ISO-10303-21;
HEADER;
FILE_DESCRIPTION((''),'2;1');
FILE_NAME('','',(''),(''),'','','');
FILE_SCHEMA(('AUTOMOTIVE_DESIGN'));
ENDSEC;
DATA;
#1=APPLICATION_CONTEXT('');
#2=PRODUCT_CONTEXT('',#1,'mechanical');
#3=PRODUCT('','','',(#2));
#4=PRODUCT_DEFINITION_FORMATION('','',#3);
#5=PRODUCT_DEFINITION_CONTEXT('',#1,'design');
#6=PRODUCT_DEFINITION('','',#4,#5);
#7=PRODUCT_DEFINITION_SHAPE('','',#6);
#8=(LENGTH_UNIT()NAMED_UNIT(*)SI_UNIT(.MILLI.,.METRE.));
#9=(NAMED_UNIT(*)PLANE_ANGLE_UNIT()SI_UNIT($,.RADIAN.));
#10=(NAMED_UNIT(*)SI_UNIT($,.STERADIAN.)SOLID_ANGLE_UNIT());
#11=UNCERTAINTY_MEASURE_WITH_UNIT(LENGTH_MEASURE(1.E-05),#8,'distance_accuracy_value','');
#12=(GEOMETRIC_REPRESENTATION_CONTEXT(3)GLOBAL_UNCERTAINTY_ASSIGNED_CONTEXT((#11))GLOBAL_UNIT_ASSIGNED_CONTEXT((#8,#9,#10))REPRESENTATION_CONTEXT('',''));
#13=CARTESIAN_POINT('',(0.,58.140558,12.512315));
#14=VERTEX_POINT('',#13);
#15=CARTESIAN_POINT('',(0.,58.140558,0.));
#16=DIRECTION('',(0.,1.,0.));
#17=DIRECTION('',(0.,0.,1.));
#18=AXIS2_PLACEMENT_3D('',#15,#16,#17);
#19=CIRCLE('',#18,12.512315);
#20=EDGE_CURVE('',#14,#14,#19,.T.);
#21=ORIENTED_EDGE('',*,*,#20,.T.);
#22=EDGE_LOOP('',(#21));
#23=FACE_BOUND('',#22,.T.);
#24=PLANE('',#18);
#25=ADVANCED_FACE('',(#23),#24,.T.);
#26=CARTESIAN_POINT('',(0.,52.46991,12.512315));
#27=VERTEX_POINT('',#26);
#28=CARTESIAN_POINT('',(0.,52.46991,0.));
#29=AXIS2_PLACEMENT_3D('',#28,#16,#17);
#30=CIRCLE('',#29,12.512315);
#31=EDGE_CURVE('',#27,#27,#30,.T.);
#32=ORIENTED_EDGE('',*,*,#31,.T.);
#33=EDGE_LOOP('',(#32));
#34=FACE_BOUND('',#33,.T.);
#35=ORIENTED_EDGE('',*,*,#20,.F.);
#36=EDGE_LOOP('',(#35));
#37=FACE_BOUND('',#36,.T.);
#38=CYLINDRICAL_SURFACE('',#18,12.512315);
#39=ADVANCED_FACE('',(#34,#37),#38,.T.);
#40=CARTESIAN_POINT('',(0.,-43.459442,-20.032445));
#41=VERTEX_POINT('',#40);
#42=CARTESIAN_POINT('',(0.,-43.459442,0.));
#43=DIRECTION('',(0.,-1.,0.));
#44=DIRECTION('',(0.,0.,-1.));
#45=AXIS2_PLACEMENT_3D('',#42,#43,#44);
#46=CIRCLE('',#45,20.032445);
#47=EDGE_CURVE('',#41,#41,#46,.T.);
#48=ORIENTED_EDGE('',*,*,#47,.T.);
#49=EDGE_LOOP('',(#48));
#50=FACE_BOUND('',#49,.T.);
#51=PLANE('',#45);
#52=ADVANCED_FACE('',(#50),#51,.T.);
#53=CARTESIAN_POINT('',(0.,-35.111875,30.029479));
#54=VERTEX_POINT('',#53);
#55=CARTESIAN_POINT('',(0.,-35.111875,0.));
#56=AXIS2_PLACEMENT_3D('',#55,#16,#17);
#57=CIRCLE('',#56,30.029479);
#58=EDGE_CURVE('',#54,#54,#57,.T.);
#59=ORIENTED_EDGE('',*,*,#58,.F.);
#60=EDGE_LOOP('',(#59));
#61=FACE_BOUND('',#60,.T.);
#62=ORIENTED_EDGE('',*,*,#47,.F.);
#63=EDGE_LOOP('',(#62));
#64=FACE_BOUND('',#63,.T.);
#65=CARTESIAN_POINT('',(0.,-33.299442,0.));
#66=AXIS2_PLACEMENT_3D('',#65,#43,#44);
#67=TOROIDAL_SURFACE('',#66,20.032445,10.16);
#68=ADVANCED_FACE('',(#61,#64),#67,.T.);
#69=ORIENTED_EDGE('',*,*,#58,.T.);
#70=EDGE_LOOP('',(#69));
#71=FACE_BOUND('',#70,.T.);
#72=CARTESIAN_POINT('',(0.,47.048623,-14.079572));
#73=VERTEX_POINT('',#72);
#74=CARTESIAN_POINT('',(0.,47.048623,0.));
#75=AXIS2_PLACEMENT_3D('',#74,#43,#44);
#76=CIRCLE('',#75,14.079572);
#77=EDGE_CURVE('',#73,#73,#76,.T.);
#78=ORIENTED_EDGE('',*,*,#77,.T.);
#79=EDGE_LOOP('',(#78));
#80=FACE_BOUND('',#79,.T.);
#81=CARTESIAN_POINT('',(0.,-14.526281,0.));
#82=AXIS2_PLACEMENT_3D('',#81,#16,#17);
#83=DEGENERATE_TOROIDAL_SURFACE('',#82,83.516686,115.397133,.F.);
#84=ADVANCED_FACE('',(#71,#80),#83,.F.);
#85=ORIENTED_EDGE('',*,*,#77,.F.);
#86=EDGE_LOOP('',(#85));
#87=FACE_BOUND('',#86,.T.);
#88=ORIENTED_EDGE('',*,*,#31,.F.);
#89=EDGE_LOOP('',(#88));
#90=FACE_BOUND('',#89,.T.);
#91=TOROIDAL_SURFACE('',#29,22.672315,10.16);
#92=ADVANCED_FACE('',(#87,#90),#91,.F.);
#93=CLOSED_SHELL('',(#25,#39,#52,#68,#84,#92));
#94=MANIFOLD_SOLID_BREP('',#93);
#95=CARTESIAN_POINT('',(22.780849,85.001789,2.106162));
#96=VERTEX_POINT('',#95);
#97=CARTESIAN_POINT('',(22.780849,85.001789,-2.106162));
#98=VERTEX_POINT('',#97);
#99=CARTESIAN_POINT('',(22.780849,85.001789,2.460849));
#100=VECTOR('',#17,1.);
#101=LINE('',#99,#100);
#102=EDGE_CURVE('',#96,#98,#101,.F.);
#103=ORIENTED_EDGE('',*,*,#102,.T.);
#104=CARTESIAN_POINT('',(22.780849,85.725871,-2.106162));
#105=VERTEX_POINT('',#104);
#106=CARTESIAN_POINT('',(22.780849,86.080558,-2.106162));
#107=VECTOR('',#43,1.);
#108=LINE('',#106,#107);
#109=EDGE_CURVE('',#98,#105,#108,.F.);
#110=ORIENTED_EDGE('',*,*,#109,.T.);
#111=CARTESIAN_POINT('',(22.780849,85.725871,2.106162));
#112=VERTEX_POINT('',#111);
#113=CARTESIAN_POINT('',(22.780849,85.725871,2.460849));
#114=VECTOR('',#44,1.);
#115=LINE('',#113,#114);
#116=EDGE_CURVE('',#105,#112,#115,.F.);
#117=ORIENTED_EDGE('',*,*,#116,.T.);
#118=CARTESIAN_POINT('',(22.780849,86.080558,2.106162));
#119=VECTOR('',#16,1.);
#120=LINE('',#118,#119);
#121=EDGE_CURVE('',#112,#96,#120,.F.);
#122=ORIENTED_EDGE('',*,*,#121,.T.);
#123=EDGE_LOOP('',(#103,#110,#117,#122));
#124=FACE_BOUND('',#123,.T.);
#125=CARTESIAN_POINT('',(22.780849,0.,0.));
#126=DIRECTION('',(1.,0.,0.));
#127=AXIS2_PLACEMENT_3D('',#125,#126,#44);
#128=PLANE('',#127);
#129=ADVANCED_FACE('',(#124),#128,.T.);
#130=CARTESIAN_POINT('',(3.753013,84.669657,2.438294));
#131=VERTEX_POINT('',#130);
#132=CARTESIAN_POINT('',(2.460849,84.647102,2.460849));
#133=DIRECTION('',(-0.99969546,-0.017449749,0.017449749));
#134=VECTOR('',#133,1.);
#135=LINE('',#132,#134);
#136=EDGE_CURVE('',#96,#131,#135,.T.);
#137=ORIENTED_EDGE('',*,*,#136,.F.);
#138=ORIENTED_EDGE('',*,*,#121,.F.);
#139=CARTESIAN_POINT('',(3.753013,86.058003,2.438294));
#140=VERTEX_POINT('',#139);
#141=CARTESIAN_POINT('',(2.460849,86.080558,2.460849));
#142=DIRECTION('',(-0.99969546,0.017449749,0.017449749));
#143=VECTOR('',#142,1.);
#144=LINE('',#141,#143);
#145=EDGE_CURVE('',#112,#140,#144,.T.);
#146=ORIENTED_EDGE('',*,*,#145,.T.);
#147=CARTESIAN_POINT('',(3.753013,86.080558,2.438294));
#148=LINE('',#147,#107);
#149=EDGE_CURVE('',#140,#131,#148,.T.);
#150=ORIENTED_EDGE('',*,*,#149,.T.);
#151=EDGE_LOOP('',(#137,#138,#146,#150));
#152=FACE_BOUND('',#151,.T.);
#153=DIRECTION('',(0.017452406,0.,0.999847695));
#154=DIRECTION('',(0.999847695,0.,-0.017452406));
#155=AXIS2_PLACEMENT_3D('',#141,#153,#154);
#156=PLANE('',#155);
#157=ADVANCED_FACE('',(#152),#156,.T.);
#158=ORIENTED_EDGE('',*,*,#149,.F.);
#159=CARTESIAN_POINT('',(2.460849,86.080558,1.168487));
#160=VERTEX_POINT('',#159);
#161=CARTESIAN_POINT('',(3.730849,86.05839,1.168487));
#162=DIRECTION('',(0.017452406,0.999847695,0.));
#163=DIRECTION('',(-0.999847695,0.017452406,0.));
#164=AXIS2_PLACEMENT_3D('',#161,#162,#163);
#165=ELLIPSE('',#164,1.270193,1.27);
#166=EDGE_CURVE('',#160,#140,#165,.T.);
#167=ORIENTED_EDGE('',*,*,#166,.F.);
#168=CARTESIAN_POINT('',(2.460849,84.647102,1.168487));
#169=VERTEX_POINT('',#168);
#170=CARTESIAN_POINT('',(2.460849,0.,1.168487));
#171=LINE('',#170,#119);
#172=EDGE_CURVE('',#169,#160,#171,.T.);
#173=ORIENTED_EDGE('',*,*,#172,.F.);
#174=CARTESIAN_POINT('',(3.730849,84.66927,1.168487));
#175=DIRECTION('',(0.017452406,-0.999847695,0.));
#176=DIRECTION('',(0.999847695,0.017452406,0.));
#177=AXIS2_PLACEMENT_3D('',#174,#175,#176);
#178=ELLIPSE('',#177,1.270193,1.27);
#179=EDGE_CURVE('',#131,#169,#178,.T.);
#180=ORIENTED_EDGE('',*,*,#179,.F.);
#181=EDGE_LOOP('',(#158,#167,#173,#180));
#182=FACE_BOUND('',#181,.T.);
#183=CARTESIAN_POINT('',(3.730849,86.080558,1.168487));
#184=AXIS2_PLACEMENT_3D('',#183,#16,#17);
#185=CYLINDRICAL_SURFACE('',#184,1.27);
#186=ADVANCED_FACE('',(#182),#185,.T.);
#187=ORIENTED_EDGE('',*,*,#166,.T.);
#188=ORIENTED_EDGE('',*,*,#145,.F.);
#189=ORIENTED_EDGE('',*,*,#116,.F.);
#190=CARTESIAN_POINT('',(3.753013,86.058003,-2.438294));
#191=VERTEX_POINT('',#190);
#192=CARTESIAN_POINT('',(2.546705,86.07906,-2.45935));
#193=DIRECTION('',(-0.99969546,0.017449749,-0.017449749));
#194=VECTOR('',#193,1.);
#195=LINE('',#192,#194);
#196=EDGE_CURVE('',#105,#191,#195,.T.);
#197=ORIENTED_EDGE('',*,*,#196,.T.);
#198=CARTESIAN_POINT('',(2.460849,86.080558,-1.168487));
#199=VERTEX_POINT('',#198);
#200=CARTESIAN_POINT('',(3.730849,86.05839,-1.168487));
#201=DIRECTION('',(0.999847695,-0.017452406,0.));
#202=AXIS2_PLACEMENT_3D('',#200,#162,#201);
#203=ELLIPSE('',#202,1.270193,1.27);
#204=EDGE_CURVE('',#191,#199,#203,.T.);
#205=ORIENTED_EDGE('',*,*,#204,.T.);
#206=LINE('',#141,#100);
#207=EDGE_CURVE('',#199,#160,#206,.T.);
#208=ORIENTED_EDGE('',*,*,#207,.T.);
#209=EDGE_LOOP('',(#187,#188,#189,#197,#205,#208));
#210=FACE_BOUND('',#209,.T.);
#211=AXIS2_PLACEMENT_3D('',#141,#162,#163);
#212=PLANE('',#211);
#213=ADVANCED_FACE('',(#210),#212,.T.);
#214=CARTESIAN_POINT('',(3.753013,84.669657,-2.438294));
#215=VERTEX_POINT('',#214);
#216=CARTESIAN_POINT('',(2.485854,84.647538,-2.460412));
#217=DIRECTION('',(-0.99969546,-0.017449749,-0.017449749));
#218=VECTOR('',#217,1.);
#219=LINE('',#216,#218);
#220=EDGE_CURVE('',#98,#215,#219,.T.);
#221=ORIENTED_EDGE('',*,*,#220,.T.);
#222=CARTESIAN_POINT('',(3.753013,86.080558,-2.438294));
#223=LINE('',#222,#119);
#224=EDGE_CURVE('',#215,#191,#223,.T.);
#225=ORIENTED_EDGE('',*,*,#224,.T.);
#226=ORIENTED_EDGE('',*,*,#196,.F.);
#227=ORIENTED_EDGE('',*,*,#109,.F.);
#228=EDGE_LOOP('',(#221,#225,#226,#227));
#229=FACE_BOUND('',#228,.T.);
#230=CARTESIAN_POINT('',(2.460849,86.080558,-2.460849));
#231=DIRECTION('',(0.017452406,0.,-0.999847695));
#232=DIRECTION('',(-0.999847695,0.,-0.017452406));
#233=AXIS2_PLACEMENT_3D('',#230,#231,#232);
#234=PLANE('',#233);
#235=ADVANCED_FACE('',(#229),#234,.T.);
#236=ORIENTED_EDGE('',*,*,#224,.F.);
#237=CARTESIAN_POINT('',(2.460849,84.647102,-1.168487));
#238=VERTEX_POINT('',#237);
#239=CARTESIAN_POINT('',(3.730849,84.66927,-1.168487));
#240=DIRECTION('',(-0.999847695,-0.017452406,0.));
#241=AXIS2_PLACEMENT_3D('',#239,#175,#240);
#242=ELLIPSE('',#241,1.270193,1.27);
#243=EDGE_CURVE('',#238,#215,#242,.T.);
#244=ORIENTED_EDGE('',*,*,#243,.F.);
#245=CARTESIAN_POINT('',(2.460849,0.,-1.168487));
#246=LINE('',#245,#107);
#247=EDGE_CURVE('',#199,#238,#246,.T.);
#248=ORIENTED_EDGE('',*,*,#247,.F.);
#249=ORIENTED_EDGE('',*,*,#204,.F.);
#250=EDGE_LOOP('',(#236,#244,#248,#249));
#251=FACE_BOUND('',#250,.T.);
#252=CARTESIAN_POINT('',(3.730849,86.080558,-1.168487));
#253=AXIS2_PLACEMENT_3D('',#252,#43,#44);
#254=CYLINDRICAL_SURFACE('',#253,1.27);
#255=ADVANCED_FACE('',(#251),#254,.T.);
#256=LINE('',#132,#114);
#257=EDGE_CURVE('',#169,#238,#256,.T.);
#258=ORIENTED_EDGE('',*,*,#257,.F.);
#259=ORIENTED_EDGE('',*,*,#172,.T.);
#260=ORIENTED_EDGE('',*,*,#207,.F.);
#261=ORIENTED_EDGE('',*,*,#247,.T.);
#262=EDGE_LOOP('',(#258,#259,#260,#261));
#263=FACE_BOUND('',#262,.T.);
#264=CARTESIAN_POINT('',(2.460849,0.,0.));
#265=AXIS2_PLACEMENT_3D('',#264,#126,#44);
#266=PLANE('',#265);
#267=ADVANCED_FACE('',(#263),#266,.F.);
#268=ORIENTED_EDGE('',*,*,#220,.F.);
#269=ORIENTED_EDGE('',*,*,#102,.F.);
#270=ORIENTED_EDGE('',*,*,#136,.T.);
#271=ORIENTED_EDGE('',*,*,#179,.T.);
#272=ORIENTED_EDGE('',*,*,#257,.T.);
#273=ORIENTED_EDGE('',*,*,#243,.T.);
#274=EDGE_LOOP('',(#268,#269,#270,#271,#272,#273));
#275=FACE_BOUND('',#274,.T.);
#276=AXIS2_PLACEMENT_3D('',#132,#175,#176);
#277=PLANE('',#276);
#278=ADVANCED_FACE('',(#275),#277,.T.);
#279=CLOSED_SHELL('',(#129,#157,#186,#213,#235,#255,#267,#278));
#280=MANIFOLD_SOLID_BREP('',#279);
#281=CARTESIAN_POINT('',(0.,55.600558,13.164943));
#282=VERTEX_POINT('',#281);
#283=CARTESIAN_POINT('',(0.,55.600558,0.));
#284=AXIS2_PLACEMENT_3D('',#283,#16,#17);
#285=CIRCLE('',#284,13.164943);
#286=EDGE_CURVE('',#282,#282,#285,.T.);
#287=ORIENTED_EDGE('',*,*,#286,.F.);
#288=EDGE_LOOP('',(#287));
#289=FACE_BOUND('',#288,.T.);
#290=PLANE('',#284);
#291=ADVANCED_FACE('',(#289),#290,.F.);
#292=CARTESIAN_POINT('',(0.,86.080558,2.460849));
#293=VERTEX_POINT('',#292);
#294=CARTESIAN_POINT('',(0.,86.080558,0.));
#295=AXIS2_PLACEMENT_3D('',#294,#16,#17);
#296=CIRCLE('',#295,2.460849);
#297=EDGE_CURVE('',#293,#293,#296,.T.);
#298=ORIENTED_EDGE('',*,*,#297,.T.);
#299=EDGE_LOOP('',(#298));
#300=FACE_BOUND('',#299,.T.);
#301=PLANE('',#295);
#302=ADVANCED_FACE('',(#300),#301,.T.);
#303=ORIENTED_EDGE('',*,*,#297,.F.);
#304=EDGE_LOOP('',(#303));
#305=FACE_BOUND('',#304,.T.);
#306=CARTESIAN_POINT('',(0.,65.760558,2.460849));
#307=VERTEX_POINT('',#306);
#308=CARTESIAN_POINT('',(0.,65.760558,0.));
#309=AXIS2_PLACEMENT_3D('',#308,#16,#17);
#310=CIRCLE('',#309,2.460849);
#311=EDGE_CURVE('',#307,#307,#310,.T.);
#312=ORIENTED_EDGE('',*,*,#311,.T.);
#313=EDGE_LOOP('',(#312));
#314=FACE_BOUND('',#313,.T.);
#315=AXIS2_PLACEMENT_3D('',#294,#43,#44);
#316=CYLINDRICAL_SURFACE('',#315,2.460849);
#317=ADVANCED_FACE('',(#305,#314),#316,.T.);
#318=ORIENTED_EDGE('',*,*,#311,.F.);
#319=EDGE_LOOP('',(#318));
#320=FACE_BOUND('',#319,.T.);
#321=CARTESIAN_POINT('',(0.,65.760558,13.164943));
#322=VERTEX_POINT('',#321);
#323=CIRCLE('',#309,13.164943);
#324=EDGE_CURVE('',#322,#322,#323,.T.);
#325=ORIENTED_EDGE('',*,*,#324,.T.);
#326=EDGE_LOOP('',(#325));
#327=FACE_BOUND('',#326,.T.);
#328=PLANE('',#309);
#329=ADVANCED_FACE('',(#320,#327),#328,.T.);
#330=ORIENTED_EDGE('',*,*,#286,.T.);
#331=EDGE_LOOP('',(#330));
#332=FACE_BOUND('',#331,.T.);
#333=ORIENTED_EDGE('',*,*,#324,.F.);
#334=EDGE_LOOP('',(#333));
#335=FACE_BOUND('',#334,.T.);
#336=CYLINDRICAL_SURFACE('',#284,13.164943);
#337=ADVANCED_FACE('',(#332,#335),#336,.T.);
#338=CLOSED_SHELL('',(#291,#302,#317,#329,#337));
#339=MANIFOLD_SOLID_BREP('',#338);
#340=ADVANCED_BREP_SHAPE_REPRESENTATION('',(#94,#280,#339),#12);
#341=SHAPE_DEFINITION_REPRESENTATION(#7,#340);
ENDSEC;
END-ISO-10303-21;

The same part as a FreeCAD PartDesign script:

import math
import FreeCAD as App
import Part
import Sketcher
Q = App.Units.Quantity


def edges_at(feature, points):
    """Names of the edges that pass closest to the given points."""
    edges = feature.Shape.Edges
    near = lambda p: min(range(len(edges)), key=lambda i: edges[i].distToShape(Part.Vertex(*p))[0])
    return sorted({f"Edge{near(p) + 1}" for p in points})


def add_polygon(sketch, points):
    """Adds a closed chain of lines whose ends are joined by coincident constraints."""
    first, n = sketch.GeometryCount, len(points)
    for a, b in zip(points, points[1:] + points[:1]):
        sketch.addGeometry(Part.LineSegment(App.Vector(*a, 0), App.Vector(*b, 0)), False)
    for i in range(n):
        sketch.addConstraint(Sketcher.Constraint("Coincident", first + i, 2, first + (i + 1) % n, 1))

doc = App.newDocument("Part")
params = doc.addObject("Spreadsheet::Sheet", "Params")
for row, (alias, value) in enumerate([
    ("sketch1_height", "4 in"),
    ("revolution_angle", "360 deg"),
    ("fillet_radius", "0.4 in"),
    ("pad1_length", "0.3 in"),
    ("pad1_length2", "0.1 in"),
    ("pad2_length", "0.8 in"),
    ("pad3_length", "0.8 in"),
    ("pad3_taper", "-1 deg"),
    ("fillet2_radius", "0.05 in"),
], start=1):
    params.set(f"A{row}", alias)
    params.set(f"B{row}", "=" + value)
    params.setAlias(f"B{row}", alias)

body = doc.addObject("PartDesign::Body", "Body")

sketch1 = doc.addObject("Sketcher::SketchObject", "Sketch")
body.addObject(sketch1)
sketch1.AttachmentSupport = (doc.XY_Plane, [""])
sketch1.MapMode = "FlatFace"
sketch1.addGeometry(Part.LineSegment(App.Vector(-28.194417, -43.459442, 0), App.Vector(0, -43.459442, 0)), False)
sketch1.addGeometry(Part.LineSegment(App.Vector(0, -43.459442, 0), App.Vector(0, 58.140558, 0)), False)
sketch1.addGeometry(Part.LineSegment(App.Vector(0, 58.140558, 0), App.Vector(-12.512315, 58.140558, 0)), False)
sketch1.addGeometry(Part.LineSegment(App.Vector(-12.512315, 58.140558, 0), App.Vector(-12.512315, 49.465353, 0)), False)
sketch1.addGeometry(Part.ArcOfCircle(Part.Circle(App.Vector(83.516686, -14.526281, 0), App.Vector(0, 0, 1), 115.397133), math.radians(146.321376), math.radians(194.520528)), False)
sketch1.addConstraint(Sketcher.Constraint("Coincident", 0, 2, 1, 1))
sketch1.addConstraint(Sketcher.Constraint("Coincident", 1, 2, 2, 1))
sketch1.addConstraint(Sketcher.Constraint("Coincident", 2, 2, 3, 1))
sketch1.addConstraint(Sketcher.Constraint("Coincident", 3, 2, 4, 1))
sketch1.addConstraint(Sketcher.Constraint("Coincident", 4, 2, 0, 1))
sketch1.addConstraint(Sketcher.Constraint("Horizontal", 0))
sketch1.addConstraint(Sketcher.Constraint("Vertical", 1))
sketch1.addConstraint(Sketcher.Constraint("Horizontal", 2))
sketch1.addConstraint(Sketcher.Constraint("Vertical", 3))
sketch1.addConstraint(Sketcher.Constraint("PointOnObject", 0, 2, -2))
sketch1.addConstraint(Sketcher.Constraint("DistanceY", 1, 1, 1, 2, Q("4 in")))
sketch1.addConstraint(Sketcher.Constraint("Radius", 4, 115.397133))
sketch1.addConstraint(Sketcher.Constraint("DistanceX", 2, 2, 4, 3, 96.029001))
sketch1.addConstraint(Sketcher.Constraint("DistanceX", 4, 2, 3, 2, 15.682102))
sketch1.addConstraint(Sketcher.Constraint("DistanceX", 0, 1, 0, 2, 28.194417))
sketch1.addConstraint(Sketcher.Constraint("DistanceY", 4, 3, -1, 1, 14.526281))
sketch1.setExpression("Constraints[10]", "Params.sketch1_height")
revolution = doc.addObject("PartDesign::Revolution", "Revolution")
body.addObject(revolution)
revolution.Profile = sketch1
revolution.ReferenceAxis = (sketch1, ["V_Axis"])
revolution.setExpression("Angle", "Params.revolution_angle")
doc.recompute()

fillet = doc.addObject("PartDesign::Fillet", "Fillet")
body.addObject(fillet)
fillet.Base = (revolution, edges_at(revolution, [(0, -43.459, -28.194), (0, 49.465, -12.512)]))
fillet.setExpression("Radius", "Params.fillet_radius")
body2 = doc.addObject("PartDesign::Body", "Body001")

sketch2 = doc.addObject("Sketcher::SketchObject", "Sketch001")
body2.addObject(sketch2)
sketch2.AttachmentSupport = (doc.getObject("XZ_Plane001"), [""])
sketch2.MapMode = "FlatFace"
sketch2.AttachmentOffset = App.Placement(App.Vector(0, 0, -58.140558), App.Rotation())
sketch2.addGeometry(Part.Circle(App.Vector(0, 0, 0), App.Vector(0, 0, 1), 13.164943), False)
sketch2.addConstraint(Sketcher.Constraint("Coincident", 0, 3, -1, 1))
sketch2.addConstraint(Sketcher.Constraint("Diameter", 0, 26.329886))
pad1 = doc.addObject("PartDesign::Pad", "Pad")
body2.addObject(pad1)
pad1.Profile = sketch2
pad1.Type = "TwoLengths"
pad1.setExpression("Length", "Params.pad1_length")
pad1.setExpression("Length2", "Params.pad1_length2")
pad1.Reversed = True

sketch3 = doc.addObject("Sketcher::SketchObject", "Sketch002")
body2.addObject(sketch3)
sketch3.AttachmentSupport = (doc.getObject("XZ_Plane001"), [""])
sketch3.MapMode = "FlatFace"
sketch3.AttachmentOffset = App.Placement(App.Vector(0, 0, -65.760558), App.Rotation())
sketch3.addGeometry(Part.Circle(App.Vector(0, 0, 0), App.Vector(0, 0, 1), 2.460849), False)
sketch3.addConstraint(Sketcher.Constraint("Coincident", 0, 3, -1, 1))
sketch3.addConstraint(Sketcher.Constraint("Diameter", 0, 4.921697))
pad2 = doc.addObject("PartDesign::Pad", "Pad001")
body2.addObject(pad2)
pad2.Profile = sketch3
pad2.setExpression("Length", "Params.pad2_length")
pad2.Reversed = True
body3 = doc.addObject("PartDesign::Body", "Body002")

sketch4 = doc.addObject("Sketcher::SketchObject", "Sketch003")
body3.addObject(sketch4)
sketch4.AttachmentSupport = (doc.getObject("YZ_Plane002"), [""])
sketch4.MapMode = "FlatFace"
sketch4.AttachmentOffset = App.Placement(App.Vector(0, 0, 2.460849), App.Rotation())
add_polygon(sketch4, [(86.080558, 2.460849), (84.647102, 2.460849), (84.647102, -2.460849), (86.080558, -2.460849)])
sketch4.addConstraint(Sketcher.Constraint("Horizontal", 0))
sketch4.addConstraint(Sketcher.Constraint("Vertical", 1))
sketch4.addConstraint(Sketcher.Constraint("Horizontal", 2))
sketch4.addConstraint(Sketcher.Constraint("Vertical", 3))
sketch4.addConstraint(Sketcher.Constraint("DistanceX", -1, 1, 0, 2, 84.647102))
sketch4.addConstraint(Sketcher.Constraint("DistanceX", 0, 2, 0, 1, 1.433456))
sketch4.addConstraint(Sketcher.Constraint("DistanceY", 1, 2, 1, 1, 4.921697))
sketch4.addConstraint(Sketcher.Constraint("DistanceY", -1, 1, 0, 2, 2.460849))
pad3 = doc.addObject("PartDesign::Pad", "Pad002")
body3.addObject(pad3)
pad3.Profile = sketch4
pad3.setExpression("Length", "Params.pad3_length")
pad3.setExpression("TaperAngle", "Params.pad3_taper")
doc.recompute()

fillet2 = doc.addObject("PartDesign::Fillet", "Fillet001")
body3.addObject(fillet2)
fillet2.Base = (pad3, edges_at(pad3, [(2.461, 85.364, -2.461), (2.461, 85.364, 2.461)]))
fillet2.setExpression("Radius", "Params.fillet2_radius")

doc.recompute()
